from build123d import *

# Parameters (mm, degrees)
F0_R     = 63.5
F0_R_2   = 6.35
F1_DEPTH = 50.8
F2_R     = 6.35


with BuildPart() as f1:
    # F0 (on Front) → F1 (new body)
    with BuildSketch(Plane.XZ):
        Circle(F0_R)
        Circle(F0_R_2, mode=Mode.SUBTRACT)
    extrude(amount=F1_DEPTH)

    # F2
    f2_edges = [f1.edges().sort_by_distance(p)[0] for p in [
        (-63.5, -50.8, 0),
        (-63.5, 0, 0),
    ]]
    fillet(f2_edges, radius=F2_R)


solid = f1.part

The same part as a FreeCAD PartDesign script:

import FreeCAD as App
import Part
import Sketcher

V = App.Vector
Q = App.Units.Quantity


def edges_at(feature, points):
    """Names of the edges that pass closest to the given points."""
    edges = feature.Shape.Edges
    near = lambda p: min(range(len(edges)), key=lambda i: edges[i].distToShape(Part.Vertex(*p))[0])
    return sorted({f"Edge{near(p) + 1}" for p in points})

doc = App.newDocument("Part")
body = doc.addObject("PartDesign::Body", "Body")

sketch1 = body.newObject("Sketcher::SketchObject", "Sketch")
sketch1.AttachmentSupport = (doc.getObject("XZ_Plane"), [""])
sketch1.MapMode = "FlatFace"
sketch1.addGeometry([
    Part.Circle(V(0, 0, 0), V(0, 0, 1), 64),
    Part.Circle(V(0, 0, 0), V(0, 0, 1), 6),
], False)
sketch1.addConstraint([
    Sketcher.Constraint("Coincident", 0, 3, -1, 1),
    Sketcher.Constraint("Coincident", 1, 3, -1, 1),
    Sketcher.Constraint("Diameter", 0, Q("5 in")),
    Sketcher.Constraint("Diameter", 1, Q("0.5 in")),
])
pad1 = body.newObject("PartDesign::Pad", "Pad")
pad1.Profile = sketch1
pad1.Length = Q("2 in")
doc.recompute()

fillet = body.newObject("PartDesign::Fillet", "Fillet")
fillet.Base = (pad1, edges_at(pad1, [(-63.5, -50.8, 0), (-63.5, 0, 0)]))
fillet.Radius = Q("0.25 in")

doc.recompute()
